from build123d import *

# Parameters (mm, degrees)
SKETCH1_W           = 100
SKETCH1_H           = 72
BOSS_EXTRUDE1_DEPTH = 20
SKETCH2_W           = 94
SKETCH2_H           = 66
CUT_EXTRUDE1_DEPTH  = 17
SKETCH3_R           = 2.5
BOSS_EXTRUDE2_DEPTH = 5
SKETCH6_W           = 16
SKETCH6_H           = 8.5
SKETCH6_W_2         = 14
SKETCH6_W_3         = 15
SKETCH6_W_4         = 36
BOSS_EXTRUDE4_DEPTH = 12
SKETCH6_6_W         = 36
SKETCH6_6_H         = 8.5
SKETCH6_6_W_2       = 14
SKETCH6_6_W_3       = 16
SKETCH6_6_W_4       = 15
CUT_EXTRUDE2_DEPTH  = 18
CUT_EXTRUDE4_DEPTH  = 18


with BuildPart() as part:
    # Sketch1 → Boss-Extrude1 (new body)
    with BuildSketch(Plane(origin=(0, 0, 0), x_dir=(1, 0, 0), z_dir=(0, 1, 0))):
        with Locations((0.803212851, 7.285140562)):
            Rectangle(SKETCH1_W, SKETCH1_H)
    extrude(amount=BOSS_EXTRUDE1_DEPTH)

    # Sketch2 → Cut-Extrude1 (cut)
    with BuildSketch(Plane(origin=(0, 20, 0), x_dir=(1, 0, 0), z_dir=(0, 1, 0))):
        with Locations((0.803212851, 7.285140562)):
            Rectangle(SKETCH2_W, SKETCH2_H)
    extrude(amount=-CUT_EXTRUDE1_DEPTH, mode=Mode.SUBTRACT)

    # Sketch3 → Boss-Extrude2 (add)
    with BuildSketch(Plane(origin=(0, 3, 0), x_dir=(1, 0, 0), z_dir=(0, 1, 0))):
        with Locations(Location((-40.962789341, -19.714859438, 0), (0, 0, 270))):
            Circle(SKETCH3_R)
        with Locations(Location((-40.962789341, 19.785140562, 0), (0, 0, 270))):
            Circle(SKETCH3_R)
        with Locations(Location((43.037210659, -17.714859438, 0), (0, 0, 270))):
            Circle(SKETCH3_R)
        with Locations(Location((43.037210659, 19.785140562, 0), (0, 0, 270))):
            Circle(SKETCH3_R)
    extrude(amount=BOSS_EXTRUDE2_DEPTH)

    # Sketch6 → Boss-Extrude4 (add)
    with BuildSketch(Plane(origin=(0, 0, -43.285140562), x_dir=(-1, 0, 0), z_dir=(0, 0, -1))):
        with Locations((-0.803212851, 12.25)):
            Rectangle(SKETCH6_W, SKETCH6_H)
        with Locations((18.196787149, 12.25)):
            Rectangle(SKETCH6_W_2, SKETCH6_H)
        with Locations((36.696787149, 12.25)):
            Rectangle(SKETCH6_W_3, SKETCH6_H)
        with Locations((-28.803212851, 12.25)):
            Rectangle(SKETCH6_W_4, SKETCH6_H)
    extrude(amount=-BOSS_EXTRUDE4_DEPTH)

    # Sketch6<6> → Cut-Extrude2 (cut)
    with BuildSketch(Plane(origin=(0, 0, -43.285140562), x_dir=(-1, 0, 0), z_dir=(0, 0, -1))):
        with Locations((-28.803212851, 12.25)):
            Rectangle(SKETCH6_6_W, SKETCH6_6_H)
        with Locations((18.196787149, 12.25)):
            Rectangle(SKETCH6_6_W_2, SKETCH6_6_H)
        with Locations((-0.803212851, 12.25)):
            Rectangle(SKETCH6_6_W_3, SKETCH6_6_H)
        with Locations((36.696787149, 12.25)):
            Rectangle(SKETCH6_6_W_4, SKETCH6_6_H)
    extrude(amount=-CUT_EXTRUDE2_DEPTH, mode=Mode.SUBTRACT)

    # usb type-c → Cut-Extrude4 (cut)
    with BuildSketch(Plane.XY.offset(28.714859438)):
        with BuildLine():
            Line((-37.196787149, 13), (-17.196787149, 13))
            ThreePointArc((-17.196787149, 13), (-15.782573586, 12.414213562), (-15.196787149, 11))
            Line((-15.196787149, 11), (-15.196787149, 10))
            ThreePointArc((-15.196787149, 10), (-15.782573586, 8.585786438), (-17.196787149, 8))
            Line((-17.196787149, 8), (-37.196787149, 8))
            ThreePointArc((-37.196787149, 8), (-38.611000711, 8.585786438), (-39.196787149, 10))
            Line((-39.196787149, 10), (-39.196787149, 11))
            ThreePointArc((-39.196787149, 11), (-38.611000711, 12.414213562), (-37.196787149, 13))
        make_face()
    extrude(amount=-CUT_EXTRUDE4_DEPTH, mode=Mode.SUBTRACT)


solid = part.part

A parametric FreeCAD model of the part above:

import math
import FreeCAD as App
import Part
import Sketcher
Q = App.Units.Quantity

doc = App.newDocument("Part")
params = doc.addObject("Spreadsheet::Sheet", "Params")
for row, (alias, value) in enumerate([
    ("sketch1_width", "100 mm"),
    ("sketch1_height", "72 mm"),
    ("pad1_length", "20 mm"),
    ("sketch2_width", "94 mm"),
    ("sketch2_height", "66 mm"),
    ("pocket1_length", "17 mm"),
    ("sketch3_diameter", "5 mm"),
    ("pad2_length", "5 mm"),
    ("sketch4_width", "16 mm"),
    ("sketch4_width2", "14 mm"),
    ("sketch4_width3", "15 mm"),
    ("sketch4_width4", "36 mm"),
    ("sketch4_height", "8.5 mm"),
    ("pad3_length", "12 mm"),
    ("sketch5_width", "36 mm"),
    ("sketch5_width2", "14 mm"),
    ("sketch5_width3", "16 mm"),
    ("sketch5_width4", "15 mm"),
    ("sketch5_height", "8.5 mm"),
    ("pocket2_length", "18 mm"),
    ("sketch6_radius", "2 mm"),
    ("sketch6_width", "20 mm"),
    ("sketch6_height", "1 mm"),
    ("pocket3_length", "18 mm"),
], start=1):
    params.set(f"A{row}", alias)
    params.set(f"B{row}", "=" + value)
    params.setAlias(f"B{row}", alias)

body = doc.addObject("PartDesign::Body", "Body")

# Sketch on XZ plane
sketch1 = body.newObject("Sketcher::SketchObject", "Sketch")
sketch1.AttachmentSupport = (doc.getObject("XZ_Plane"), [""])
sketch1.MapMode = "FlatFace"
sketch1.addGeometry([
    Part.LineSegment(App.Vector(-49, -43, 0), App.Vector(-49, 29, 0)),
    Part.LineSegment(App.Vector(-49, 29, 0), App.Vector(51, 29, 0)),
    Part.LineSegment(App.Vector(51, 29, 0), App.Vector(51, -43, 0)),
    Part.LineSegment(App.Vector(51, -43, 0), App.Vector(-49, -43, 0)),
], False)
sketch1.addConstraint([
    Sketcher.Constraint("Coincident", 0, 2, 1, 1),
    Sketcher.Constraint("Coincident", 1, 2, 2, 1),
    Sketcher.Constraint("Coincident", 2, 2, 3, 1),
    Sketcher.Constraint("Coincident", 3, 2, 0, 1),
    Sketcher.Constraint("Vertical", 0),
    Sketcher.Constraint("Horizontal", 1),
    Sketcher.Constraint("Vertical", 2),
    Sketcher.Constraint("Horizontal", 3),
    Sketcher.Constraint("DistanceX", 1, 1, 1, 2, Q("100 mm")),
    Sketcher.Constraint("DistanceY", 0, 1, 0, 2, Q("72 mm")),
    Sketcher.Constraint("DistanceY", -1, 1, 0, 2, Q("28.714859 mm")),
    Sketcher.Constraint("DistanceX", 0, 2, -1, 1, Q("49.196787 mm")),
])
sketch1.setExpression("Constraints[8]", "Params.sketch1_width")
sketch1.setExpression("Constraints[9]", "Params.sketch1_height")
pad1 = body.newObject("PartDesign::Pad", "Pad")
pad1.Profile = sketch1
pad1.setExpression("Length", "Params.pad1_length")
pad1.Reversed = True

# Sketch on XZ plane
sketch2 = body.newObject("Sketcher::SketchObject", "Sketch001")
sketch2.AttachmentSupport = (doc.getObject("XZ_Plane"), [""])
sketch2.MapMode = "FlatFace"
sketch2.AttachmentOffset = App.Placement(App.Vector(0, 0, -20), App.Rotation())
sketch2.addGeometry([
    Part.LineSegment(App.Vector(-46, -40, 0), App.Vector(-46, 26, 0)),
    Part.LineSegment(App.Vector(-46, 26, 0), App.Vector(48, 26, 0)),
    Part.LineSegment(App.Vector(48, 26, 0), App.Vector(48, -40, 0)),
    Part.LineSegment(App.Vector(48, -40, 0), App.Vector(-46, -40, 0)),
], False)
sketch2.addConstraint([
    Sketcher.Constraint("Coincident", 0, 2, 1, 1),
    Sketcher.Constraint("Coincident", 1, 2, 2, 1),
    Sketcher.Constraint("Coincident", 2, 2, 3, 1),
    Sketcher.Constraint("Coincident", 3, 2, 0, 1),
    Sketcher.Constraint("Vertical", 0),
    Sketcher.Constraint("Horizontal", 1),
    Sketcher.Constraint("Vertical", 2),
    Sketcher.Constraint("Horizontal", 3),
    Sketcher.Constraint("DistanceX", 1, 1, 1, 2, Q("94 mm")),
    Sketcher.Constraint("DistanceY", 0, 1, 0, 2, Q("66 mm")),
    Sketcher.Constraint("DistanceY", -1, 1, 0, 2, Q("25.714859 mm")),
    Sketcher.Constraint("DistanceX", 0, 2, -1, 1, Q("46.196787 mm")),
])
sketch2.setExpression("Constraints[8]", "Params.sketch2_width")
sketch2.setExpression("Constraints[9]", "Params.sketch2_height")
pocket1 = body.newObject("PartDesign::Pocket", "Pocket")
pocket1.Profile = sketch2
pocket1.setExpression("Length", "Params.pocket1_length")
pocket1.Reversed = True

# Sketch on XZ plane
sketch3 = body.newObject("Sketcher::SketchObject", "Sketch002")
sketch3.AttachmentSupport = (doc.getObject("XZ_Plane"), [""])
sketch3.MapMode = "FlatFace"
sketch3.AttachmentOffset = App.Placement(App.Vector(0, 0, -3), App.Rotation())
sketch3.addGeometry([
    Part.Circle(App.Vector(-41, 19.7, 0), App.Vector(0, 0, 1), 2.5),
    Part.Circle(App.Vector(-41, -19.8, 0), App.Vector(0, 0, 1), 2.5),
    Part.Circle(App.Vector(43, 17.7, 0), App.Vector(0, 0, 1), 2.5),
    Part.Circle(App.Vector(43, -19.8, 0), App.Vector(0, 0, 1), 2.5),
], False)
sketch3.addConstraint([
    Sketcher.Constraint("Equal", 0, 1),
    Sketcher.Constraint("Equal", 1, 2),
    Sketcher.Constraint("Equal", 2, 3),
    Sketcher.Constraint("Horizontal", 1, 3, 3, 3),
    Sketcher.Constraint("Vertical", 0, 3, 1, 3),
    Sketcher.Constraint("Vertical", 2, 3, 3, 3),
    Sketcher.Constraint("Diameter", 0, Q("5 mm")),
    Sketcher.Constraint("DistanceX", 0, 3, 2, 3, Q("84 mm")),
    Sketcher.Constraint("DistanceY", 2, 3, 0, 3, Q("2 mm")),
    Sketcher.Constraint("DistanceY", 1, 3, 0, 3, Q("39.5 mm")),
    Sketcher.Constraint("DistanceX", 0, 3, -1, 1, Q("40.962789 mm")),
    Sketcher.Constraint("DistanceY", -1, 1, 0, 3, Q("19.714859 mm")),
])
sketch3.setExpression("Constraints[6]", "Params.sketch3_diameter")
pad2 = body.newObject("PartDesign::Pad", "Pad001")
pad2.Profile = sketch3
pad2.setExpression("Length", "Params.pad2_length")
pad2.Reversed = True

# Sketch on XY plane
sketch4 = body.newObject("Sketcher::SketchObject", "Sketch003")
sketch4.AttachmentSupport = (doc.getObject("XY_Plane"), [""])
sketch4.MapMode = "FlatFace"
sketch4.AttachmentOffset = App.Placement(App.Vector(0, 0, -43.285141), App.Rotation())
sketch4.addGeometry([
    Part.LineSegment(App.Vector(9, 16, 0), App.Vector(9, 8, 0)),  # 0
    Part.LineSegment(App.Vector(9, 8, 0), App.Vector(-7, 8, 0)),  # 1
    Part.LineSegment(App.Vector(-7, 8, 0), App.Vector(-7, 16, 0)),  # 2
    Part.LineSegment(App.Vector(-7, 16, 0), App.Vector(9, 16, 0)),  # 3
    Part.LineSegment(App.Vector(-11, 16, 0), App.Vector(-11, 8, 0)),  # 4
    Part.LineSegment(App.Vector(-11, 8, 0), App.Vector(-25, 8, 0)),  # 5
    Part.LineSegment(App.Vector(-25, 8, 0), App.Vector(-25, 16, 0)),  # 6
    Part.LineSegment(App.Vector(-25, 16, 0), App.Vector(-11, 16, 0)),  # 7
    Part.LineSegment(App.Vector(-29, 16, 0), App.Vector(-29, 8, 0)),  # 8
    Part.LineSegment(App.Vector(-29, 8, 0), App.Vector(-44, 8, 0)),  # 9
    Part.LineSegment(App.Vector(-44, 8, 0), App.Vector(-44, 16, 0)),  # 10
    Part.LineSegment(App.Vector(-44, 16, 0), App.Vector(-29, 16, 0)),  # 11
    Part.LineSegment(App.Vector(47, 16, 0), App.Vector(47, 8, 0)),  # 12
    Part.LineSegment(App.Vector(47, 8, 0), App.Vector(11, 8, 0)),  # 13
    Part.LineSegment(App.Vector(11, 8, 0), App.Vector(11, 16, 0)),  # 14
    Part.LineSegment(App.Vector(11, 16, 0), App.Vector(47, 16, 0)),  # 15
], False)
sketch4.addConstraint([
    Sketcher.Constraint("Coincident", 0, 2, 1, 1),
    Sketcher.Constraint("Coincident", 1, 2, 2, 1),
    Sketcher.Constraint("Coincident", 2, 2, 3, 1),
    Sketcher.Constraint("Coincident", 3, 2, 0, 1),
    Sketcher.Constraint("Coincident", 4, 2, 5, 1),
    Sketcher.Constraint("Coincident", 5, 2, 6, 1),
    Sketcher.Constraint("Coincident", 6, 2, 7, 1),
    Sketcher.Constraint("Coincident", 7, 2, 4, 1),
    Sketcher.Constraint("Coincident", 8, 2, 9, 1),
    Sketcher.Constraint("Coincident", 9, 2, 10, 1),
    Sketcher.Constraint("Coincident", 10, 2, 11, 1),
    Sketcher.Constraint("Coincident", 11, 2, 8, 1),
    Sketcher.Constraint("Coincident", 12, 2, 13, 1),
    Sketcher.Constraint("Coincident", 13, 2, 14, 1),
    Sketcher.Constraint("Coincident", 14, 2, 15, 1),
    Sketcher.Constraint("Coincident", 15, 2, 12, 1),
    Sketcher.Constraint("Vertical", 0),
    Sketcher.Constraint("Horizontal", 1),
    Sketcher.Constraint("Vertical", 2),
    Sketcher.Constraint("Horizontal", 3),
    Sketcher.Constraint("Vertical", 4),
    Sketcher.Constraint("Horizontal", 5),
    Sketcher.Constraint("Vertical", 6),
    Sketcher.Constraint("Horizontal", 7),
    Sketcher.Constraint("Vertical", 8),
    Sketcher.Constraint("Horizontal", 9),
    Sketcher.Constraint("Vertical", 10),
    Sketcher.Constraint("Horizontal", 11),
    Sketcher.Constraint("Vertical", 12),
    Sketcher.Constraint("Horizontal", 13),
    Sketcher.Constraint("Vertical", 14),
    Sketcher.Constraint("Horizontal", 15),
    Sketcher.Constraint("Horizontal", 1, 2, 4, 2),
    Sketcher.Constraint("Horizontal", 3, 2, 6, 2),
    Sketcher.Constraint("Horizontal", 5, 2, 8, 2),
    Sketcher.Constraint("Horizontal", 7, 2, 10, 2),
    Sketcher.Constraint("Horizontal", 9, 2, 12, 2),
    Sketcher.Constraint("Horizontal", 11, 2, 14, 2),
    Sketcher.Constraint("DistanceX", 1, 2, 1, 1, Q("16 mm")),
    Sketcher.Constraint("DistanceX", 5, 2, 5, 1, Q("14 mm")),
    Sketcher.Constraint("DistanceX", 9, 2, 9, 1, Q("15 mm")),
    Sketcher.Constraint("DistanceX", 13, 2, 13, 1, Q("36 mm")),
    Sketcher.Constraint("DistanceY", 0, 2, 0, 1, Q("8.5 mm")),
    Sketcher.Constraint("DistanceY", -1, 1, 0, 2, Q("8 mm")),
    Sketcher.Constraint("DistanceX", 4, 2, 1, 2, Q("4 mm")),
    Sketcher.Constraint("DistanceX", 8, 2, 5, 2, Q("4 mm")),
    Sketcher.Constraint("DistanceX", 0, 2, 12, 2, Q("38 mm")),
    Sketcher.Constraint("DistanceX", -1, 1, 0, 2, Q("8.803213 mm")),
])
sketch4.setExpression("Constraints[38]", "Params.sketch4_width")
sketch4.setExpression("Constraints[39]", "Params.sketch4_width2")
sketch4.setExpression("Constraints[40]", "Params.sketch4_width3")
sketch4.setExpression("Constraints[41]", "Params.sketch4_width4")
sketch4.setExpression("Constraints[42]", "Params.sketch4_height")
pad3 = body.newObject("PartDesign::Pad", "Pad002")
pad3.Profile = sketch4
pad3.setExpression("Length", "Params.pad3_length")

# Sketch on XY plane
sketch5 = body.newObject("Sketcher::SketchObject", "Sketch004")
sketch5.AttachmentSupport = (doc.getObject("XY_Plane"), [""])
sketch5.MapMode = "FlatFace"
sketch5.AttachmentOffset = App.Placement(App.Vector(0, 0, -43.285141), App.Rotation())
sketch5.addGeometry([
    Part.LineSegment(App.Vector(47, 16, 0), App.Vector(47, 8, 0)),  # 0
    Part.LineSegment(App.Vector(47, 8, 0), App.Vector(11, 8, 0)),  # 1
    Part.LineSegment(App.Vector(11, 8, 0), App.Vector(11, 16, 0)),  # 2
    Part.LineSegment(App.Vector(11, 16, 0), App.Vector(47, 16, 0)),  # 3
    Part.LineSegment(App.Vector(-11, 16, 0), App.Vector(-11, 8, 0)),  # 4
    Part.LineSegment(App.Vector(-11, 8, 0), App.Vector(-25, 8, 0)),  # 5
    Part.LineSegment(App.Vector(-25, 8, 0), App.Vector(-25, 16, 0)),  # 6
    Part.LineSegment(App.Vector(-25, 16, 0), App.Vector(-11, 16, 0)),  # 7
    Part.LineSegment(App.Vector(9, 16, 0), App.Vector(9, 8, 0)),  # 8
    Part.LineSegment(App.Vector(9, 8, 0), App.Vector(-7, 8, 0)),  # 9
    Part.LineSegment(App.Vector(-7, 8, 0), App.Vector(-7, 16, 0)),  # 10
    Part.LineSegment(App.Vector(-7, 16, 0), App.Vector(9, 16, 0)),  # 11
    Part.LineSegment(App.Vector(-29, 16, 0), App.Vector(-29, 8, 0)),  # 12
    Part.LineSegment(App.Vector(-29, 8, 0), App.Vector(-44, 8, 0)),  # 13
    Part.LineSegment(App.Vector(-44, 8, 0), App.Vector(-44, 16, 0)),  # 14
    Part.LineSegment(App.Vector(-44, 16, 0), App.Vector(-29, 16, 0)),  # 15
], False)
sketch5.addConstraint([
    Sketcher.Constraint("Coincident", 0, 2, 1, 1),
    Sketcher.Constraint("Coincident", 1, 2, 2, 1),
    Sketcher.Constraint("Coincident", 2, 2, 3, 1),
    Sketcher.Constraint("Coincident", 3, 2, 0, 1),
    Sketcher.Constraint("Coincident", 4, 2, 5, 1),
    Sketcher.Constraint("Coincident", 5, 2, 6, 1),
    Sketcher.Constraint("Coincident", 6, 2, 7, 1),
    Sketcher.Constraint("Coincident", 7, 2, 4, 1),
    Sketcher.Constraint("Coincident", 8, 2, 9, 1),
    Sketcher.Constraint("Coincident", 9, 2, 10, 1),
    Sketcher.Constraint("Coincident", 10, 2, 11, 1),
    Sketcher.Constraint("Coincident", 11, 2, 8, 1),
    Sketcher.Constraint("Coincident", 12, 2, 13, 1),
    Sketcher.Constraint("Coincident", 13, 2, 14, 1),
    Sketcher.Constraint("Coincident", 14, 2, 15, 1),
    Sketcher.Constraint("Coincident", 15, 2, 12, 1),
    Sketcher.Constraint("Vertical", 0),
    Sketcher.Constraint("Horizontal", 1),
    Sketcher.Constraint("Vertical", 2),
    Sketcher.Constraint("Horizontal", 3),
    Sketcher.Constraint("Vertical", 4),
    Sketcher.Constraint("Horizontal", 5),
    Sketcher.Constraint("Vertical", 6),
    Sketcher.Constraint("Horizontal", 7),
    Sketcher.Constraint("Vertical", 8),
    Sketcher.Constraint("Horizontal", 9),
    Sketcher.Constraint("Vertical", 10),
    Sketcher.Constraint("Horizontal", 11),
    Sketcher.Constraint("Vertical", 12),
    Sketcher.Constraint("Horizontal", 13),
    Sketcher.Constraint("Vertical", 14),
    Sketcher.Constraint("Horizontal", 15),
    Sketcher.Constraint("Horizontal", 1, 2, 4, 2),
    Sketcher.Constraint("Horizontal", 3, 2, 6, 2),
    Sketcher.Constraint("Horizontal", 5, 2, 8, 2),
    Sketcher.Constraint("Horizontal", 7, 2, 10, 2),
    Sketcher.Constraint("Horizontal", 9, 2, 12, 2),
    Sketcher.Constraint("Horizontal", 11, 2, 14, 2),
    Sketcher.Constraint("DistanceX", 1, 2, 1, 1, Q("36 mm")),
    Sketcher.Constraint("DistanceX", 5, 2, 5, 1, Q("14 mm")),
    Sketcher.Constraint("DistanceX", 9, 2, 9, 1, Q("16 mm")),
    Sketcher.Constraint("DistanceX", 13, 2, 13, 1, Q("15 mm")),
    Sketcher.Constraint("DistanceY", 0, 2, 0, 1, Q("8.5 mm")),
    Sketcher.Constraint("DistanceY", -1, 1, 0, 2, Q("8 mm")),
    Sketcher.Constraint("DistanceX", 4, 2, 1, 2, Q("22 mm")),
    Sketcher.Constraint("DistanceX", 8, 2, 1, 2, Q("2 mm")),
    Sketcher.Constraint("DistanceX", 12, 2, 5, 2, Q("4 mm")),
    Sketcher.Constraint("DistanceX", -1, 1, 0, 2, Q("46.803213 mm")),
])
sketch5.setExpression("Constraints[38]", "Params.sketch5_width")
sketch5.setExpression("Constraints[39]", "Params.sketch5_width2")
sketch5.setExpression("Constraints[40]", "Params.sketch5_width3")
sketch5.setExpression("Constraints[41]", "Params.sketch5_width4")
sketch5.setExpression("Constraints[42]", "Params.sketch5_height")
pocket2 = body.newObject("PartDesign::Pocket", "Pocket001")
pocket2.Profile = sketch5
pocket2.setExpression("Length", "Params.pocket2_length")
pocket2.Reversed = True

# Sketch on XY plane
sketch6 = body.newObject("Sketcher::SketchObject", "Sketch005")
sketch6.AttachmentSupport = (doc.getObject("XY_Plane"), [""])
sketch6.MapMode = "FlatFace"
sketch6.AttachmentOffset = App.Placement(App.Vector(0, 0, 28.714859), App.Rotation())
sketch6.addGeometry([
    Part.LineSegment(App.Vector(-17.2, 13, 0), App.Vector(-37.2, 13, 0)),  # 0
    Part.ArcOfCircle(Part.Circle(App.Vector(-37.2, 11, 0), App.Vector(0, 0, 1), 2), math.radians(90), math.radians(180)),  # 1
    Part.LineSegment(App.Vector(-39.2, 11, 0), App.Vector(-39.2, 10, 0)),  # 2
    Part.ArcOfCircle(Part.Circle(App.Vector(-37.2, 10, 0), App.Vector(0, 0, 1), 2), math.radians(-180), math.radians(-90)),  # 3
    Part.LineSegment(App.Vector(-37.2, 8, 0), App.Vector(-17.2, 8, 0)),  # 4
    Part.ArcOfCircle(Part.Circle(App.Vector(-17.2, 10, 0), App.Vector(0, 0, 1), 2), math.radians(-90), math.radians(0)),  # 5
    Part.LineSegment(App.Vector(-15.2, 10, 0), App.Vector(-15.2, 11, 0)),  # 6
    Part.ArcOfCircle(Part.Circle(App.Vector(-17.2, 11, 0), App.Vector(0, 0, 1), 2), math.radians(0), math.radians(90)),  # 7
], False)
sketch6.addConstraint([
    Sketcher.Constraint("Tangent", 0, 2, 1, 1),
    Sketcher.Constraint("Tangent", 1, 2, 2, 1),
    Sketcher.Constraint("Tangent", 2, 2, 3, 1),
    Sketcher.Constraint("Tangent", 3, 2, 4, 1),
    Sketcher.Constraint("Tangent", 4, 2, 5, 1),
    Sketcher.Constraint("Tangent", 5, 2, 6, 1),
    Sketcher.Constraint("Tangent", 6, 2, 7, 1),
    Sketcher.Constraint("Tangent", 7, 2, 0, 1),
    Sketcher.Constraint("Horizontal", 0),
    Sketcher.Constraint("Vertical", 2),
    Sketcher.Constraint("Horizontal", 4),
    Sketcher.Constraint("Vertical", 6),
    Sketcher.Constraint("Equal", 1, 3),
    Sketcher.Constraint("Equal", 3, 5),
    Sketcher.Constraint("Equal", 5, 7),
    Sketcher.Constraint("Radius", 1, Q("2 mm")),
    Sketcher.Constraint("DistanceX", 0, 2, 0, 1, Q("20 mm")),
    Sketcher.Constraint("DistanceY", 2, 2, 2, 1, Q("1 mm")),
    Sketcher.Constraint("DistanceY", -1, 1, 1, 3, Q("11 mm")),
    Sketcher.Constraint("DistanceX", 1, 3, -1, 1, Q("37.196787 mm")),
])
sketch6.setExpression("Constraints[15]", "Params.sketch6_radius")
sketch6.setExpression("Constraints[16]", "Params.sketch6_width")
sketch6.setExpression("Constraints[17]", "Params.sketch6_height")
pocket3 = body.newObject("PartDesign::Pocket", "Pocket002")
pocket3.Profile = sketch6
pocket3.setExpression("Length", "Params.pocket3_length")

doc.recompute()
